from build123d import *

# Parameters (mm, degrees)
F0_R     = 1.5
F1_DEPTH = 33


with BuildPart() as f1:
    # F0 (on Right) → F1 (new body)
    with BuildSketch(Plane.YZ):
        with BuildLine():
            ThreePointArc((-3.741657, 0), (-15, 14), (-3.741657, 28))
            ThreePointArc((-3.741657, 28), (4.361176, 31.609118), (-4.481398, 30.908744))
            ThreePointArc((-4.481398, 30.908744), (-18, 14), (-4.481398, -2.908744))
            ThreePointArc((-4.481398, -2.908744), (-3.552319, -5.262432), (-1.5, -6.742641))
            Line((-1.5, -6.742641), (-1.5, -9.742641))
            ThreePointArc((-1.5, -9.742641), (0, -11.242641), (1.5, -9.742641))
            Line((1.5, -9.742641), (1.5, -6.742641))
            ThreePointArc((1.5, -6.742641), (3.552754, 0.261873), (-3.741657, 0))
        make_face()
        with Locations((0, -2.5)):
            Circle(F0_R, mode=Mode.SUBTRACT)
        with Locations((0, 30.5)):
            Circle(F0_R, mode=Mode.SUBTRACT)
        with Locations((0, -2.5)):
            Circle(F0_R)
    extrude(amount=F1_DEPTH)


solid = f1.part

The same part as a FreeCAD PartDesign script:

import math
import FreeCAD as App
import Part
import Sketcher
from FreeCAD import Vector
Q = App.Units.Quantity

doc = App.newDocument("Part")
body = doc.addObject("PartDesign::Body", "Body")

# Sketch on YZ plane
sketch1 = doc.addObject("Sketcher::SketchObject", "Sketch")
body.addObject(sketch1)
sketch1.AttachmentSupport = (doc.YZ_Plane, [""])
sketch1.MapMode = "FlatFace"
sketch1.addGeometry([
    Part.ArcOfCircle(Part.Circle(Vector(-0.7, 14, 0), Vector(0, 0, 1), 14.3), math.radians(102), math.radians(258)),  # 0
    Part.ArcOfCircle(Part.Circle(Vector(0, 30.5, 0), Vector(0, 0, 1), 4.5), math.radians(-146), math.radians(175)),  # 1
    Part.ArcOfCircle(Part.Circle(Vector(-0.7, 14, 0), Vector(0, 0, 1), 17.3), math.radians(103), math.radians(257)),  # 2
    Part.ArcOfCircle(Part.Circle(Vector(0, -2.5, 0), Vector(0, 0, 1), 4.5), math.radians(-175), math.radians(-109)),  # 3
    Part.LineSegment(Vector(-1.5, -6.7, 0), Vector(-1.5, -9.7, 0)),  # 4
    Part.ArcOfCircle(Part.Circle(Vector(0, -9.7, 0), Vector(0, 0, 1), 1.5), math.radians(180), math.radians(360)),  # 5
    Part.LineSegment(Vector(1.5, -9.7, 0), Vector(1.5, -6.7, 0)),  # 6
    Part.ArcOfCircle(Part.Circle(Vector(0, -2.5, 0), Vector(0, 0, 1), 4.5), math.radians(-71), math.radians(146)),  # 7
    Part.Circle(Vector(0, 30.5, 0), Vector(0, 0, 1), 1.5),  # 8
], False)
sketch1.addConstraint([
    Sketcher.Constraint("Coincident", 0, 1, 1, 1),
    Sketcher.Constraint("Coincident", 1, 2, 2, 1),
    Sketcher.Constraint("Coincident", 2, 2, 3, 1),
    Sketcher.Constraint("Coincident", 3, 2, 4, 1),
    Sketcher.Constraint("Tangent", 4, 2, 5, 1),
    Sketcher.Constraint("Tangent", 5, 2, 6, 1),
    Sketcher.Constraint("Coincident", 6, 2, 7, 1),
    Sketcher.Constraint("Coincident", 7, 2, 0, 2),
    Sketcher.Constraint("Vertical", 4),
    Sketcher.Constraint("Vertical", 6),
    Sketcher.Constraint("Coincident", 2, 3, 0, 3),
    Sketcher.Constraint("Coincident", 7, 3, 3, 3),
    Sketcher.Constraint("Coincident", 8, 3, 1, 3),
    Sketcher.Constraint("Equal", 1, 3),
    Sketcher.Constraint("Equal", 3, 7),
    Sketcher.Constraint("Equal", 5, 8),
    Sketcher.Constraint("Symmetric", 3, 2, 6, 2, -2),
    Sketcher.Constraint("PointOnObject", 1, 3, -2),
    Sketcher.Constraint("PointOnObject", 7, 2, -1),
    Sketcher.Constraint("Vertical", 1, 2, 2, 2),
    Sketcher.Constraint("Diameter", 8, Q("3 mm")),
    Sketcher.Constraint("Radius", 1, Q("4.5 mm")),
    Sketcher.Constraint("DistanceY", 4, 2, 4, 1, Q("3 mm")),
    Sketcher.Constraint("DistanceY", -1, 1, 0, 3, Q("14 mm")),
    Sketcher.Constraint("DistanceY", 3, 3, 1, 3, Q("33.000001 mm")),
    Sketcher.Constraint("Radius", 0, Q("14.333827 mm")),
    Sketcher.Constraint("Radius", 2, Q("17.333827 mm")),
])
pad1 = doc.addObject("PartDesign::Pad", "Pad")
body.addObject(pad1)
pad1.Profile = sketch1
pad1.Length = 33

doc.recompute()
